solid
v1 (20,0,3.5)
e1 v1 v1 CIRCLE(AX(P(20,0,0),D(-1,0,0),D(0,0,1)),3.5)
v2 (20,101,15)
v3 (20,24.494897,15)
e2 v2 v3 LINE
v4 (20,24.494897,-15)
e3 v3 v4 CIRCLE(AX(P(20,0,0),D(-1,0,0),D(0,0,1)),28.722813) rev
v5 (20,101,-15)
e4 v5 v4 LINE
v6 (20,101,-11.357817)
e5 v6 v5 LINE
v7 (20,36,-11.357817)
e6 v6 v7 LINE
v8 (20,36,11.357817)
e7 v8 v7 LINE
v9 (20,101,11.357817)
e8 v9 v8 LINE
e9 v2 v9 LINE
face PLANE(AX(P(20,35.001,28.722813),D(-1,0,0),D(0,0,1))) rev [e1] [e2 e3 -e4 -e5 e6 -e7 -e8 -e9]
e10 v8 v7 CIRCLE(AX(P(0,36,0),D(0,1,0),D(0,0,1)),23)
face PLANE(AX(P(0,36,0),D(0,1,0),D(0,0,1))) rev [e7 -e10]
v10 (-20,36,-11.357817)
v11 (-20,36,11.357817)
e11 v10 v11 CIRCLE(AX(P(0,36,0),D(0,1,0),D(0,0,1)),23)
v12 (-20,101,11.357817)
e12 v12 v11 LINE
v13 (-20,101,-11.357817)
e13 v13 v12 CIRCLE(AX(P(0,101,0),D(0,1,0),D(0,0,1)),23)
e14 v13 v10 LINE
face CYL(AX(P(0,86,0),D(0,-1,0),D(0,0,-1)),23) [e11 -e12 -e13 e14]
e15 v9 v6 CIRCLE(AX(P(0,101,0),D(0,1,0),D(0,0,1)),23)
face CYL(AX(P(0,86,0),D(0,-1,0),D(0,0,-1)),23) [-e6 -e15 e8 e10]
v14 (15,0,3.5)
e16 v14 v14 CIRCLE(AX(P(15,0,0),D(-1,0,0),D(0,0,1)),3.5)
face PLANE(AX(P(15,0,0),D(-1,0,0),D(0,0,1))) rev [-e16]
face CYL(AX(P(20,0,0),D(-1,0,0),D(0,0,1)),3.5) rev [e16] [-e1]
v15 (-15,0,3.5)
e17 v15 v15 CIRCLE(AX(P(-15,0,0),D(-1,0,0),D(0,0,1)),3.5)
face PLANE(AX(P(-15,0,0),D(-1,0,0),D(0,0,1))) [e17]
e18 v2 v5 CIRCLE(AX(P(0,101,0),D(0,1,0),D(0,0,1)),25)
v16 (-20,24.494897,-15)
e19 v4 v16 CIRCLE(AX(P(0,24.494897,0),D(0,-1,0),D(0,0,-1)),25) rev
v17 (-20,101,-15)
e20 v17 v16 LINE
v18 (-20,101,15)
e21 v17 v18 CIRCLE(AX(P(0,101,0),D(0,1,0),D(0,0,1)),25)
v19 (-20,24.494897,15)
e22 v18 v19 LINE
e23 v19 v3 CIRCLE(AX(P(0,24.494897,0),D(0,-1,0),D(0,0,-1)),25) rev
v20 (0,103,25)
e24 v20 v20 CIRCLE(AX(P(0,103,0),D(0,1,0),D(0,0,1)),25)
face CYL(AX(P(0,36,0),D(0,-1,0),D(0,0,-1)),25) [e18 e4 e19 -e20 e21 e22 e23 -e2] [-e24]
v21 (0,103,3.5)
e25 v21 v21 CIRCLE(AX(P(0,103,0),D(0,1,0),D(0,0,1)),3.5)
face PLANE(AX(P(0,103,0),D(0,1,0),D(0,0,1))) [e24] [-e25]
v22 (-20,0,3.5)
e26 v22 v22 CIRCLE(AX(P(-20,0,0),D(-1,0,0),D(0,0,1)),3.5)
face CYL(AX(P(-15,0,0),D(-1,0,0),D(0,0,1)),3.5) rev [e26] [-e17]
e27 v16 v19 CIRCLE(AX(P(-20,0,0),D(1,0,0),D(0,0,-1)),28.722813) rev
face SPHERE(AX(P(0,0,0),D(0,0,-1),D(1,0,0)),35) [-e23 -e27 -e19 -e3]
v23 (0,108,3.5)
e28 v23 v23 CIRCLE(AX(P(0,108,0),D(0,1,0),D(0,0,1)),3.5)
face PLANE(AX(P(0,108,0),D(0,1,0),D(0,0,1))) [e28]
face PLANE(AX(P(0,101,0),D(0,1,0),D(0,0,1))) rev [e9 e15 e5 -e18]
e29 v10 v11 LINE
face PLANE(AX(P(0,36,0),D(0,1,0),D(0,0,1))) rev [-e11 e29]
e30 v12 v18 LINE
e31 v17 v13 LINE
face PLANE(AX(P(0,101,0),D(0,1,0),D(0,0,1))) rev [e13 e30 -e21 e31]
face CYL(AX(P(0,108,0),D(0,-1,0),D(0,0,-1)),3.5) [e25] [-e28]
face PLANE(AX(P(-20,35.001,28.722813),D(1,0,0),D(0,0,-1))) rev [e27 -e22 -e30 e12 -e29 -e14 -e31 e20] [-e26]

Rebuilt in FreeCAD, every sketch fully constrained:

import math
import FreeCAD as App
import Part
import Sketcher

V = App.Vector


def add_polygon(sketch, points):
    """Adds a closed chain of lines whose ends are joined by coincident constraints."""
    first, n = sketch.GeometryCount, len(points)
    for a, b in zip(points, points[1:] + points[:1]):
        sketch.addGeometry(Part.LineSegment(App.Vector(*a, 0), App.Vector(*b, 0)), False)
    for i in range(n):
        sketch.addConstraint(Sketcher.Constraint("Coincident", first + i, 2, first + (i + 1) % n, 1))

doc = App.newDocument("Part")
body = doc.addObject("PartDesign::Body", "Body")

# Sketch on XZ plane
sketch1 = body.newObject("Sketcher::SketchObject", "Sketch")
sketch1.AttachmentSupport = (doc.getObject("XZ_Plane"), [""])
sketch1.MapMode = "FlatFace"
sketch1.addGeometry([
    Part.LineSegment(V(0, -35, 0), V(0, 35, 0)),
    Part.ArcOfCircle(Part.Circle(V(0, 0, 0), V(0, 0, 1), 35), math.radians(-90), math.radians(90)),
], False)
sketch1.addConstraint([
    Sketcher.Constraint("Coincident", 0, 1, 1, 1),
    Sketcher.Constraint("Coincident", 1, 2, 0, 2),
    Sketcher.Constraint("Vertical", 0),
    Sketcher.Constraint("Coincident", 1, 3, -1, 1),
    Sketcher.Constraint("PointOnObject", 0, 1, -2),
    Sketcher.Constraint("Radius", 1, 35.0),
])
revolution = body.newObject("PartDesign::Revolution", "Revolution")
revolution.Profile = sketch1
revolution.ReferenceAxis = (sketch1, ["V_Axis"])
revolution.Angle = 360

# Sketch on XZ plane
sketch2 = body.newObject("Sketcher::SketchObject", "Sketch001")
sketch2.AttachmentSupport = (doc.getObject("XZ_Plane"), [""])
sketch2.MapMode = "FlatFace"
add_polygon(sketch2, [(-48, -48), (-48, 48), (48, 48), (48, -48)])  # lines 0-3
sketch2.addGeometry(Part.ArcOfCircle(Part.Circle(V(0, 0, 0), V(0, 0, 1), 35), math.radians(55), math.radians(125)), False)  # 4
sketch2.addGeometry(Part.LineSegment(V(-20, 29, 0), V(-20, -29, 0)), False)  # 5
sketch2.addGeometry(Part.ArcOfCircle(Part.Circle(V(0, 0, 0), V(0, 0, 1), 35), math.radians(-125), math.radians(-55)), False)  # 6
sketch2.addGeometry(Part.LineSegment(V(20, -29, 0), V(20, 29, 0)), False)  # 7
sketch2.addConstraint([
    Sketcher.Constraint("Coincident", 4, 2, 5, 1),
    Sketcher.Constraint("Coincident", 5, 2, 6, 1),
    Sketcher.Constraint("Coincident", 6, 2, 7, 1),
    Sketcher.Constraint("Coincident", 7, 2, 4, 1),
    Sketcher.Constraint("Vertical", 0),
    Sketcher.Constraint("Horizontal", 1),
    Sketcher.Constraint("Vertical", 2),
    Sketcher.Constraint("Horizontal", 3),
    Sketcher.Constraint("Vertical", 5),
    Sketcher.Constraint("Vertical", 7),
    Sketcher.Constraint("Coincident", 4, 3, -1, 1),
    Sketcher.Constraint("Coincident", 6, 3, -1, 1),
    Sketcher.Constraint("Equal", 4, 6),
    Sketcher.Constraint("Symmetric", 0, 2, 2, 2, -1, 1),
    Sketcher.Constraint("Horizontal", 5, 2, 6, 2),
    Sketcher.Constraint("Equal", 3, 0),
    Sketcher.Constraint("Radius", 4, 35.0),
    Sketcher.Constraint("DistanceX", 4, 2, -1, 1, 20.0),
    Sketcher.Constraint("DistanceX", 1, 1, 1, 2, 96.248),
])
pocket1 = body.newObject("PartDesign::Pocket", "Pocket")
pocket1.Profile = sketch2
pocket1.Type = "ThroughAll"
pocket1.Midplane = True

# Sketch on XZ plane
sketch3 = body.newObject("Sketcher::SketchObject", "Sketch002")
sketch3.AttachmentSupport = (doc.getObject("XZ_Plane"), [""])
sketch3.MapMode = "FlatFace"
sketch3.addGeometry([
    Part.LineSegment(V(-20, -15, 0), V(-20, 15, 0)),
    Part.ArcOfCircle(Part.Circle(V(0, 0, 0), V(0, 0, 1), 25), math.radians(37), math.radians(143)),
    Part.LineSegment(V(20, 15, 0), V(20, -15, 0)),
    Part.ArcOfCircle(Part.Circle(V(0, 0, 0), V(0, 0, 1), 25), math.radians(-143), math.radians(-37)),
], False)
sketch3.addConstraint([
    Sketcher.Constraint("Coincident", 0, 2, 1, 2),
    Sketcher.Constraint("Coincident", 1, 1, 2, 1),
    Sketcher.Constraint("Coincident", 2, 2, 3, 2),
    Sketcher.Constraint("Coincident", 3, 1, 0, 1),
    Sketcher.Constraint("Vertical", 0),
    Sketcher.Constraint("Vertical", 2),
    Sketcher.Constraint("Coincident", 1, 3, -1, 1),
    Sketcher.Constraint("Coincident", 3, 3, -1, 1),
    Sketcher.Constraint("Equal", 1, 3),
    Sketcher.Constraint("Horizontal", 0, 2, 1, 1),
    Sketcher.Constraint("Radius", 1, 25.0),
    Sketcher.Constraint("DistanceY", 0, 1, 0, 2, 30.0),
])
pad1 = body.newObject("PartDesign::Pad", "Pad")
pad1.Profile = sketch3
pad1.Length = 36
pad1.Reversed = True

# Sketch on YZ plane
sketch4 = body.newObject("Sketcher::SketchObject", "Sketch003")
sketch4.AttachmentSupport = (doc.getObject("YZ_Plane"), [""])
sketch4.MapMode = "FlatFace"
sketch4.AttachmentOffset = App.Placement(V(0, 0, -20), App.Rotation())
sketch4.addGeometry(Part.Circle(V(0, 0, 0), V(0, 0, 1), 3.5), False)
sketch4.addConstraint([
    Sketcher.Constraint("Coincident", 0, 3, -1, 1),
    Sketcher.Constraint("Diameter", 0, 7.0),
])
pocket2 = body.newObject("PartDesign::Pocket", "Pocket001")
pocket2.Profile = sketch4
pocket2.Length = 5
pocket2.Reversed = True
doc.recompute()

linearpattern = body.newObject("PartDesign::LinearPattern", "LinearPattern")
linearpattern.Originals = [pocket2]
linearpattern.Direction = (doc.getObject("X_Axis"), [""])
linearpattern.Mode = "offset"
linearpattern.Offset = 35
linearpattern.Occurrences = 2
body.Tip = linearpattern

# Sketch on XZ plane
sketch5 = body.newObject("Sketcher::SketchObject", "Sketch004")
sketch5.AttachmentSupport = (doc.getObject("XZ_Plane"), [""])
sketch5.MapMode = "FlatFace"
sketch5.AttachmentOffset = App.Placement(V(0, 0, -36), App.Rotation())
sketch5.addGeometry([
    Part.LineSegment(V(-20, -15, 0), V(-20, -11.4, 0)),  # 0
    Part.ArcOfCircle(Part.Circle(V(0, 0, 0), V(0, 0, 1), 23), math.radians(150), math.radians(210)),  # 1
    Part.LineSegment(V(-20, 11.4, 0), V(-20, 15, 0)),  # 2
    Part.ArcOfCircle(Part.Circle(V(0, 0, 0), V(0, 0, 1), 25), math.radians(37), math.radians(143)),  # 3
    Part.LineSegment(V(20, 15, 0), V(20, 11.4, 0)),  # 4
    Part.ArcOfCircle(Part.Circle(V(0, 0, 0), V(0, 0, 1), 23), math.radians(-30), math.radians(30)),  # 5
    Part.LineSegment(V(20, -11.4, 0), V(20, -15, 0)),  # 6
    Part.ArcOfCircle(Part.Circle(V(0, 0, 0), V(0, 0, 1), 25), math.radians(-143), math.radians(-37)),  # 7
], False)
sketch5.addConstraint([
    Sketcher.Constraint("Coincident", 0, 2, 1, 2),
    Sketcher.Constraint("Coincident", 1, 1, 2, 1),
    Sketcher.Constraint("Coincident", 2, 2, 3, 2),
    Sketcher.Constraint("Coincident", 3, 1, 4, 1),
    Sketcher.Constraint("Coincident", 4, 2, 5, 2),
    Sketcher.Constraint("Coincident", 5, 1, 6, 1),
    Sketcher.Constraint("Coincident", 6, 2, 7, 2),
    Sketcher.Constraint("Coincident", 7, 1, 0, 1),
    Sketcher.Constraint("Vertical", 0),
    Sketcher.Constraint("Vertical", 2),
    Sketcher.Constraint("Vertical", 4),
    Sketcher.Constraint("Vertical", 6),
    Sketcher.Constraint("Coincident", 1, 3, -1, 1),
    Sketcher.Constraint("Coincident", 3, 3, -1, 1),
    Sketcher.Constraint("Coincident", 5, 3, -1, 1),
    Sketcher.Constraint("Coincident", 7, 3, -1, 1),
    Sketcher.Constraint("Equal", 1, 5),
    Sketcher.Constraint("Equal", 3, 7),
    Sketcher.Constraint("Horizontal", 2, 2, 3, 1),
    Sketcher.Constraint("Horizontal", 0, 2, 5, 1),
    Sketcher.Constraint("Vertical", 0, 2, 1, 1),
    Sketcher.Constraint("Radius", 1, 23.0),
    Sketcher.Constraint("Radius", 3, 25.0),
    Sketcher.Constraint("DistanceX", 0, 2, -1, 1, 20.0),
])
pad2 = body.newObject("PartDesign::Pad", "Pad001")
pad2.Profile = sketch5
pad2.Length = 50
pad2.Reversed = True

# Sketch on XZ plane
sketch6 = body.newObject("Sketcher::SketchObject", "Sketch005")
sketch6.AttachmentSupport = (doc.getObject("XZ_Plane"), [""])
sketch6.MapMode = "FlatFace"
sketch6.AttachmentOffset = App.Placement(V(0, 0, -86), App.Rotation())
sketch6.addGeometry([
    Part.LineSegment(V(20, -11.4, 0), V(20, -15, 0)),  # 0
    Part.ArcOfCircle(Part.Circle(V(0, 0, 0), V(0, 0, 1), 25), math.radians(-143), math.radians(-37)),  # 1
    Part.LineSegment(V(-20, -15, 0), V(-20, -11.4, 0)),  # 2
    Part.ArcOfCircle(Part.Circle(V(0, 0, 0), V(0, 0, 1), 23), math.radians(150), math.radians(210)),  # 3
    Part.LineSegment(V(-20, 11.4, 0), V(-20, 15, 0)),  # 4
    Part.ArcOfCircle(Part.Circle(V(0, 0, 0), V(0, 0, 1), 25), math.radians(37), math.radians(143)),  # 5
    Part.LineSegment(V(20, 15, 0), V(20, 11.4, 0)),  # 6
    Part.ArcOfCircle(Part.Circle(V(0, 0, 0), V(0, 0, 1), 23), math.radians(-30), math.radians(30)),  # 7
], False)
sketch6.addConstraint([
    Sketcher.Constraint("Coincident", 0, 2, 1, 2),
    Sketcher.Constraint("Coincident", 1, 1, 2, 1),
    Sketcher.Constraint("Coincident", 2, 2, 3, 2),
    Sketcher.Constraint("Coincident", 3, 1, 4, 1),
    Sketcher.Constraint("Coincident", 4, 2, 5, 2),
    Sketcher.Constraint("Coincident", 5, 1, 6, 1),
    Sketcher.Constraint("Coincident", 6, 2, 7, 2),
    Sketcher.Constraint("Coincident", 7, 1, 0, 1),
    Sketcher.Constraint("Vertical", 0),
    Sketcher.Constraint("Vertical", 2),
    Sketcher.Constraint("Vertical", 4),
    Sketcher.Constraint("Vertical", 6),
    Sketcher.Constraint("Coincident", 1, 3, -1, 1),
    Sketcher.Constraint("Coincident", 3, 3, -1, 1),
    Sketcher.Constraint("Coincident", 5, 3, -1, 1),
    Sketcher.Constraint("Coincident", 7, 3, -1, 1),
    Sketcher.Constraint("Equal", 1, 5),
    Sketcher.Constraint("Equal", 3, 7),
    Sketcher.Constraint("Horizontal", 0, 2, 1, 1),
    Sketcher.Constraint("Horizontal", 4, 2, 5, 1),
    Sketcher.Constraint("Vertical", 2, 2, 3, 1),
    Sketcher.Constraint("Radius", 1, 25.0),
    Sketcher.Constraint("Radius", 3, 23.0),
    Sketcher.Constraint("DistanceX", -1, 1, 0, 2, 20.0),
])
pad3 = body.newObject("PartDesign::Pad", "Pad002")
pad3.Profile = sketch6
pad3.Length = 15
pad3.Reversed = True

# Sketch on XZ plane
sketch7 = body.newObject("Sketcher::SketchObject", "Sketch006")
sketch7.AttachmentSupport = (doc.getObject("XZ_Plane"), [""])
sketch7.MapMode = "FlatFace"
sketch7.AttachmentOffset = App.Placement(V(0, 0, -101), App.Rotation())
sketch7.addGeometry(Part.Circle(V(0, 0, 0), V(0, 0, 1), 25), False)
sketch7.addConstraint([
    Sketcher.Constraint("Coincident", 0, 3, -1, 1),
    Sketcher.Constraint("Diameter", 0, 50.0),
])
pad4 = body.newObject("PartDesign::Pad", "Pad003")
pad4.Profile = sketch7
pad4.Length = 2
pad4.Reversed = True

# Sketch on XZ plane
sketch8 = body.newObject("Sketcher::SketchObject", "Sketch007")
sketch8.AttachmentSupport = (doc.getObject("XZ_Plane"), [""])
sketch8.MapMode = "FlatFace"
sketch8.AttachmentOffset = App.Placement(V(0, 0, -103), App.Rotation())
sketch8.addGeometry(Part.Circle(V(0, 0, 0), V(0, 0, 1), 3.5), False)
sketch8.addConstraint([
    Sketcher.Constraint("Coincident", 0, 3, -1, 1),
    Sketcher.Constraint("Diameter", 0, 7.0),
])
pad5 = body.newObject("PartDesign::Pad", "Pad004")
pad5.Profile = sketch8
pad5.Length = 5
pad5.Reversed = True

doc.recompute()
